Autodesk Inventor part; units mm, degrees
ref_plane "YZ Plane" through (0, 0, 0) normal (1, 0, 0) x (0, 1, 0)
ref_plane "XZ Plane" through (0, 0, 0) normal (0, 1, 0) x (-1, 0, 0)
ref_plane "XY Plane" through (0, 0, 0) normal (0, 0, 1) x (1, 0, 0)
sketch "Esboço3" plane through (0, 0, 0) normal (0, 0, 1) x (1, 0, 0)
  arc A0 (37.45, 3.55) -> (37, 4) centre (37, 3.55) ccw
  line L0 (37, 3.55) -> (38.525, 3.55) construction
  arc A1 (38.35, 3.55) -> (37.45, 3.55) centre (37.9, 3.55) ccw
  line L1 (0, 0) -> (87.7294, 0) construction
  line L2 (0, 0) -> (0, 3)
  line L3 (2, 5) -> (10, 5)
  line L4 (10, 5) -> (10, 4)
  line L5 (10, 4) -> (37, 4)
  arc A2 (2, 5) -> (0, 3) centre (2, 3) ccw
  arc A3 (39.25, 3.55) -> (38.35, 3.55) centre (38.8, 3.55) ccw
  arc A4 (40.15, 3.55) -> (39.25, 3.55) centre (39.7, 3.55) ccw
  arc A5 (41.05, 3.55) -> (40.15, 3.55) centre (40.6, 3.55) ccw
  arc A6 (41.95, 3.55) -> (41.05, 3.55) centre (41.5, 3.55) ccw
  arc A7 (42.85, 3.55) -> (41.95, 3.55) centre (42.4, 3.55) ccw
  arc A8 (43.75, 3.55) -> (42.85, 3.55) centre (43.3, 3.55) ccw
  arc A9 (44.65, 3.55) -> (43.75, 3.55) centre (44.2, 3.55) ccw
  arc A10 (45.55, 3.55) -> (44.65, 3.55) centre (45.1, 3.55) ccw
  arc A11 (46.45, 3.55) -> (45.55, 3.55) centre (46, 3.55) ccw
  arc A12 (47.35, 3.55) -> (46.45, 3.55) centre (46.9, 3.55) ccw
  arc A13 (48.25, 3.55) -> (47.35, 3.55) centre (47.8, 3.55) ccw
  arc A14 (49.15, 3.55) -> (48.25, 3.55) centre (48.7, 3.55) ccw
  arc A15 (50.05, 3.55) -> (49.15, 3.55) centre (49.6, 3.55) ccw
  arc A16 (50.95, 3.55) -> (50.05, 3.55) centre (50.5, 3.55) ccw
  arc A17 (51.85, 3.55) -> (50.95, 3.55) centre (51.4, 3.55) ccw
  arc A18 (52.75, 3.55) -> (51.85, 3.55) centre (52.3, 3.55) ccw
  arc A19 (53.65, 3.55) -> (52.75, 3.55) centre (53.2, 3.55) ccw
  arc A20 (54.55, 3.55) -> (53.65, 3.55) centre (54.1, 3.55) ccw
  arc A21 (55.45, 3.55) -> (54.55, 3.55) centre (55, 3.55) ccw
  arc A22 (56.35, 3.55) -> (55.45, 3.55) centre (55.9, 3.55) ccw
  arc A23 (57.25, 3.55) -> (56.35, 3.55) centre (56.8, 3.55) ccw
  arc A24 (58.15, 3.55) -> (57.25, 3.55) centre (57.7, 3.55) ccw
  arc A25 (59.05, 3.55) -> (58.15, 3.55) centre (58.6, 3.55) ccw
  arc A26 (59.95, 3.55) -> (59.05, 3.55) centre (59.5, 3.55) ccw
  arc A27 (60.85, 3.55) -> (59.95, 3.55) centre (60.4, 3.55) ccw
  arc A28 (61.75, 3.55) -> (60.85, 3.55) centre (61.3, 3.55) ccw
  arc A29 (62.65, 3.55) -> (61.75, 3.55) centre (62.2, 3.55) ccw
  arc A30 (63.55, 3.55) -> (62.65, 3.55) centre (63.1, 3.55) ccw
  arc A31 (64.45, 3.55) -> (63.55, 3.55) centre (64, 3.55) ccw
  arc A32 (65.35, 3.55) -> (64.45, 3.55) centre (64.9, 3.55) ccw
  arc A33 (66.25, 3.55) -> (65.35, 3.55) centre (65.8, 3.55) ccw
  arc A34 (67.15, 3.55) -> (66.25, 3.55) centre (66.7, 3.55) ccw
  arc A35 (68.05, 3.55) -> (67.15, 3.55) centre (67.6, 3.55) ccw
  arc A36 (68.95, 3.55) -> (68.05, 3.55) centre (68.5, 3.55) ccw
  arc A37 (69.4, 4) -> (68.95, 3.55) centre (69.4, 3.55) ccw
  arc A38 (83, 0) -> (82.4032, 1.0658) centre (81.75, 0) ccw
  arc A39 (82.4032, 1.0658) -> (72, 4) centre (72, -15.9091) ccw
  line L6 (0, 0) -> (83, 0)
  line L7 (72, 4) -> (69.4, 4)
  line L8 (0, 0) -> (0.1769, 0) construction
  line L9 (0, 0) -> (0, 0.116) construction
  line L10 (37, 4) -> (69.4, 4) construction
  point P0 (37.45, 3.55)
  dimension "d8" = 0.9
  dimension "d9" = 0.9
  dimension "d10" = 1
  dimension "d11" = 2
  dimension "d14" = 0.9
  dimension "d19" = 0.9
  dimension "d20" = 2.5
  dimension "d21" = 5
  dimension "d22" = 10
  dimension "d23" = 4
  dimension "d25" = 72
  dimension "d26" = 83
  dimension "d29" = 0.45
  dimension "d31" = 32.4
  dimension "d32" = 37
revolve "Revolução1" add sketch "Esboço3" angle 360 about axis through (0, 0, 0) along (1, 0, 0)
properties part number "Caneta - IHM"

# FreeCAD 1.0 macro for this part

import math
import FreeCAD as App
import Part
import Sketcher

V = App.Vector
Q = App.Units.Quantity

doc = App.newDocument("Part")
params = doc.addObject("Spreadsheet::Sheet", "Params")
for row, (alias, value) in enumerate([
    ("sketch1_radius", "2 mm"),
    ("sketch1_width", "83 mm"),
    ("sketch1_height", "1 mm"),
    ("sketch1_radius2", "0.45 mm"),
    ("sketch1_radius3", "1.25 mm"),
    ("revolution_angle", "360 deg"),
], start=1):
    params.set(f"A{row}", alias)
    params.set(f"B{row}", "=" + value)
    params.setAlias(f"B{row}", alias)

body = doc.addObject("PartDesign::Body", "Body")

sketch1 = body.newObject("Sketcher::SketchObject", "Sketch")
sketch1.AttachmentSupport = (doc.getObject("XY_Plane"), [""])
sketch1.MapMode = "FlatFace"
sketch1.addGeometry([
    Part.ArcOfCircle(Part.Circle(V(37.9, 3.55, 0), V(0, 0, 1), 0.45), math.radians(0), math.radians(180)),
    Part.ArcOfCircle(Part.Circle(V(37, 3.55, 0), V(0, 0, 1), 0.45), math.radians(0), math.radians(90)),
    Part.LineSegment(V(37, 4, 0), V(10, 4, 0)),
    Part.LineSegment(V(10, 4, 0), V(10, 5, 0)),
    Part.LineSegment(V(10, 5, 0), V(2, 5, 0)),
    Part.ArcOfCircle(Part.Circle(V(2, 3, 0), V(0, 0, 1), 2), math.radians(90), math.radians(180)),
    Part.LineSegment(V(0, 3, 0), V(0, 0, 0)),
    Part.LineSegment(V(0, 0, 0), V(83, 0, 0)),
    Part.ArcOfCircle(Part.Circle(V(81.75, 0, 0), V(0, 0, 1), 1.25), math.radians(0), math.radians(58.496994)),
    Part.ArcOfCircle(Part.Circle(V(72, -15.9091, 0), V(0, 0, 1), 19.909139), math.radians(58.497625), math.radians(90)),
    Part.LineSegment(V(72, 4, 0), V(69.4, 4, 0)),
    Part.ArcOfCircle(Part.Circle(V(69.4, 3.55, 0), V(0, 0, 1), 0.45), math.radians(90), math.radians(180)),
    Part.ArcOfCircle(Part.Circle(V(68.5, 3.55, 0), V(0, 0, 1), 0.45), math.radians(0), math.radians(180)),
    Part.ArcOfCircle(Part.Circle(V(67.6, 3.55, 0), V(0, 0, 1), 0.45), math.radians(0), math.radians(180)),
    Part.ArcOfCircle(Part.Circle(V(66.7, 3.55, 0), V(0, 0, 1), 0.45), math.radians(0), math.radians(180)),
    Part.ArcOfCircle(Part.Circle(V(65.8, 3.55, 0), V(0, 0, 1), 0.45), math.radians(0), math.radians(180)),
    Part.ArcOfCircle(Part.Circle(V(64.9, 3.55, 0), V(0, 0, 1), 0.45), math.radians(0), math.radians(180)),
    Part.ArcOfCircle(Part.Circle(V(64, 3.55, 0), V(0, 0, 1), 0.45), math.radians(0), math.radians(180)),
    Part.ArcOfCircle(Part.Circle(V(63.1, 3.55, 0), V(0, 0, 1), 0.45), math.radians(0), math.radians(180)),
    Part.ArcOfCircle(Part.Circle(V(62.2, 3.55, 0), V(0, 0, 1), 0.45), math.radians(0), math.radians(180)),
    Part.ArcOfCircle(Part.Circle(V(61.3, 3.55, 0), V(0, 0, 1), 0.45), math.radians(0), math.radians(180)),
    Part.ArcOfCircle(Part.Circle(V(60.4, 3.55, 0), V(0, 0, 1), 0.45), math.radians(0), math.radians(180)),
    Part.ArcOfCircle(Part.Circle(V(59.5, 3.55, 0), V(0, 0, 1), 0.45), math.radians(0), math.radians(180)),
    Part.ArcOfCircle(Part.Circle(V(58.6, 3.55, 0), V(0, 0, 1), 0.45), math.radians(0), math.radians(180)),
    Part.ArcOfCircle(Part.Circle(V(57.7, 3.55, 0), V(0, 0, 1), 0.45), math.radians(0), math.radians(180)),
    Part.ArcOfCircle(Part.Circle(V(56.8, 3.55, 0), V(0, 0, 1), 0.45), math.radians(0), math.radians(180)),
    Part.ArcOfCircle(Part.Circle(V(55.9, 3.55, 0), V(0, 0, 1), 0.45), math.radians(0), math.radians(180)),
    Part.ArcOfCircle(Part.Circle(V(55, 3.55, 0), V(0, 0, 1), 0.45), math.radians(0), math.radians(180)),
    Part.ArcOfCircle(Part.Circle(V(54.1, 3.55, 0), V(0, 0, 1), 0.45), math.radians(0), math.radians(180)),
    Part.ArcOfCircle(Part.Circle(V(53.2, 3.55, 0), V(0, 0, 1), 0.45), math.radians(0), math.radians(180)),
    Part.ArcOfCircle(Part.Circle(V(52.3, 3.55, 0), V(0, 0, 1), 0.45), math.radians(0), math.radians(180)),
    Part.ArcOfCircle(Part.Circle(V(51.4, 3.55, 0), V(0, 0, 1), 0.45), math.radians(0), math.radians(180)),
    Part.ArcOfCircle(Part.Circle(V(50.5, 3.55, 0), V(0, 0, 1), 0.45), math.radians(0), math.radians(180)),
    Part.ArcOfCircle(Part.Circle(V(49.6, 3.55, 0), V(0, 0, 1), 0.45), math.radians(0), math.radians(180)),
    Part.ArcOfCircle(Part.Circle(V(48.7, 3.55, 0), V(0, 0, 1), 0.45), math.radians(0), math.radians(180)),
    Part.ArcOfCircle(Part.Circle(V(47.8, 3.55, 0), V(0, 0, 1), 0.45), math.radians(0), math.radians(180)),
    Part.ArcOfCircle(Part.Circle(V(46.9, 3.55, 0), V(0, 0, 1), 0.45), math.radians(0), math.radians(180)),
    Part.ArcOfCircle(Part.Circle(V(46, 3.55, 0), V(0, 0, 1), 0.45), math.radians(0), math.radians(180)),
    Part.ArcOfCircle(Part.Circle(V(45.1, 3.55, 0), V(0, 0, 1), 0.45), math.radians(0), math.radians(180)),
    Part.ArcOfCircle(Part.Circle(V(44.2, 3.55, 0), V(0, 0, 1), 0.45), math.radians(0), math.radians(180)),
    Part.ArcOfCircle(Part.Circle(V(43.3, 3.55, 0), V(0, 0, 1), 0.45), math.radians(0), math.radians(180)),
    Part.ArcOfCircle(Part.Circle(V(42.4, 3.55, 0), V(0, 0, 1), 0.45), math.radians(0), math.radians(180)),
    Part.ArcOfCircle(Part.Circle(V(41.5, 3.55, 0), V(0, 0, 1), 0.45), math.radians(0), math.radians(180)),
    Part.ArcOfCircle(Part.Circle(V(40.6, 3.55, 0), V(0, 0, 1), 0.45), math.radians(0), math.radians(180)),
    Part.ArcOfCircle(Part.Circle(V(39.7, 3.55, 0), V(0, 0, 1), 0.45), math.radians(0), math.radians(180)),
    Part.ArcOfCircle(Part.Circle(V(38.8, 3.55, 0), V(0, 0, 1), 0.45), math.radians(0), math.radians(180)),
], False)
sketch1.addConstraint([
    Sketcher.Constraint("Tangent", 0, 2, 1, 1),
    Sketcher.Constraint("Tangent", 1, 2, 2, 1),
    Sketcher.Constraint("Coincident", 2, 2, 3, 1),
    Sketcher.Constraint("Coincident", 3, 2, 4, 1),
    Sketcher.Constraint("Tangent", 4, 2, 5, 1),
    Sketcher.Constraint("Tangent", 5, 2, 6, 1),
    Sketcher.Constraint("Coincident", 6, 2, 7, 1),
    Sketcher.Constraint("Coincident", 7, 2, 8, 1),
    Sketcher.Constraint("Tangent", 8, 2, 9, 1),
    Sketcher.Constraint("Tangent", 9, 2, 10, 1),
    Sketcher.Constraint("Tangent", 10, 2, 11, 1),
    Sketcher.Constraint("Tangent", 11, 2, 12, 1),
    Sketcher.Constraint("Tangent", 12, 2, 13, 1),
    Sketcher.Constraint("Tangent", 13, 2, 14, 1),
    Sketcher.Constraint("Tangent", 14, 2, 15, 1),
    Sketcher.Constraint("Tangent", 15, 2, 16, 1),
    Sketcher.Constraint("Tangent", 16, 2, 17, 1),
    Sketcher.Constraint("Tangent", 17, 2, 18, 1),
    Sketcher.Constraint("Tangent", 18, 2, 19, 1),
    Sketcher.Constraint("Tangent", 19, 2, 20, 1),
    Sketcher.Constraint("Tangent", 20, 2, 21, 1),
    Sketcher.Constraint("Tangent", 21, 2, 22, 1),
    Sketcher.Constraint("Tangent", 22, 2, 23, 1),
    Sketcher.Constraint("Tangent", 23, 2, 24, 1),
    Sketcher.Constraint("Tangent", 24, 2, 25, 1),
    Sketcher.Constraint("Tangent", 25, 2, 26, 1),
    Sketcher.Constraint("Tangent", 26, 2, 27, 1),
    Sketcher.Constraint("Tangent", 27, 2, 28, 1),
    Sketcher.Constraint("Tangent", 28, 2, 29, 1),
    Sketcher.Constraint("Tangent", 29, 2, 30, 1),
    Sketcher.Constraint("Tangent", 30, 2, 31, 1),
    Sketcher.Constraint("Tangent", 31, 2, 32, 1),
    Sketcher.Constraint("Tangent", 32, 2, 33, 1),
    Sketcher.Constraint("Tangent", 33, 2, 34, 1),
    Sketcher.Constraint("Tangent", 34, 2, 35, 1),
    Sketcher.Constraint("Tangent", 35, 2, 36, 1),
    Sketcher.Constraint("Tangent", 36, 2, 37, 1),
    Sketcher.Constraint("Tangent", 37, 2, 38, 1),
    Sketcher.Constraint("Tangent", 38, 2, 39, 1),
    Sketcher.Constraint("Tangent", 39, 2, 40, 1),
    Sketcher.Constraint("Tangent", 40, 2, 41, 1),
    Sketcher.Constraint("Tangent", 41, 2, 42, 1),
    Sketcher.Constraint("Tangent", 42, 2, 43, 1),
    Sketcher.Constraint("Tangent", 43, 2, 44, 1),
    Sketcher.Constraint("Tangent", 44, 2, 45, 1),
    Sketcher.Constraint("Tangent", 45, 2, 0, 1),
    Sketcher.Constraint("Horizontal", 2),
    Sketcher.Constraint("Vertical", 3),
    Sketcher.Constraint("Horizontal", 4),
    Sketcher.Constraint("Vertical", 6),
    Sketcher.Constraint("Horizontal", 7),
    Sketcher.Constraint("Horizontal", 10),
    Sketcher.Constraint("Coincident", 6, 2, -1, 1),
    Sketcher.Constraint("Equal", 0, 1),
    Sketcher.Constraint("Equal", 1, 11),
    Sketcher.Constraint("Equal", 11, 12),
    Sketcher.Constraint("Equal", 12, 13),
    Sketcher.Constraint("Equal", 13, 14),
    Sketcher.Constraint("Equal", 14, 15),
    Sketcher.Constraint("Equal", 15, 16),
    Sketcher.Constraint("Equal", 16, 17),
    Sketcher.Constraint("Equal", 17, 18),
    Sketcher.Constraint("Equal", 18, 19),
    Sketcher.Constraint("Equal", 19, 20),
    Sketcher.Constraint("Equal", 20, 21),
    Sketcher.Constraint("Equal", 21, 22),
    Sketcher.Constraint("Equal", 22, 23),
    Sketcher.Constraint("Equal", 23, 24),
    Sketcher.Constraint("Equal", 24, 25),
    Sketcher.Constraint("Equal", 25, 26),
    Sketcher.Constraint("Equal", 26, 27),
    Sketcher.Constraint("Equal", 27, 28),
    Sketcher.Constraint("Equal", 28, 29),
    Sketcher.Constraint("Equal", 29, 30),
    Sketcher.Constraint("Equal", 30, 31),
    Sketcher.Constraint("Equal", 31, 32),
    Sketcher.Constraint("Equal", 32, 33),
    Sketcher.Constraint("Equal", 33, 34),
    Sketcher.Constraint("Equal", 34, 35),
    Sketcher.Constraint("Equal", 35, 36),
    Sketcher.Constraint("Equal", 36, 37),
    Sketcher.Constraint("Equal", 37, 38),
    Sketcher.Constraint("Equal", 38, 39),
    Sketcher.Constraint("Equal", 39, 40),
    Sketcher.Constraint("Equal", 40, 41),
    Sketcher.Constraint("Equal", 41, 42),
    Sketcher.Constraint("Equal", 42, 43),
    Sketcher.Constraint("Equal", 43, 44),
    Sketcher.Constraint("Equal", 44, 45),
    Sketcher.Constraint("PointOnObject", 8, 3, -1),
    Sketcher.Constraint("Horizontal", 0, 3, 1, 3),
    Sketcher.Constraint("Horizontal", 1, 3, 11, 3),
    Sketcher.Constraint("Horizontal", 11, 3, 12, 3),
    Sketcher.Constraint("Horizontal", 12, 3, 13, 3),
    Sketcher.Constraint("Horizontal", 13, 3, 14, 3),
    Sketcher.Constraint("Horizontal", 14, 3, 15, 3),
    Sketcher.Constraint("Horizontal", 15, 3, 16, 3),
    Sketcher.Constraint("Horizontal", 16, 3, 17, 3),
    Sketcher.Constraint("Horizontal", 17, 3, 18, 3),
    Sketcher.Constraint("Horizontal", 18, 3, 19, 3),
    Sketcher.Constraint("Horizontal", 19, 3, 20, 3),
    Sketcher.Constraint("Horizontal", 20, 3, 21, 3),
    Sketcher.Constraint("Horizontal", 21, 3, 22, 3),
    Sketcher.Constraint("Horizontal", 22, 3, 23, 3),
    Sketcher.Constraint("Horizontal", 23, 3, 24, 3),
    Sketcher.Constraint("Horizontal", 24, 3, 25, 3),
    Sketcher.Constraint("Horizontal", 25, 3, 26, 3),
    Sketcher.Constraint("Horizontal", 26, 3, 27, 3),
    Sketcher.Constraint("Horizontal", 27, 3, 28, 3),
    Sketcher.Constraint("Horizontal", 28, 3, 29, 3),
    Sketcher.Constraint("Horizontal", 29, 3, 30, 3),
    Sketcher.Constraint("Horizontal", 30, 3, 31, 3),
    Sketcher.Constraint("Horizontal", 31, 3, 32, 3),
    Sketcher.Constraint("Horizontal", 32, 3, 33, 3),
    Sketcher.Constraint("Horizontal", 33, 3, 34, 3),
    Sketcher.Constraint("Horizontal", 34, 3, 35, 3),
    Sketcher.Constraint("Horizontal", 35, 3, 36, 3),
    Sketcher.Constraint("Horizontal", 36, 3, 37, 3),
    Sketcher.Constraint("Horizontal", 37, 3, 38, 3),
    Sketcher.Constraint("Horizontal", 38, 3, 39, 3),
    Sketcher.Constraint("Horizontal", 39, 3, 40, 3),
    Sketcher.Constraint("Horizontal", 40, 3, 41, 3),
    Sketcher.Constraint("Horizontal", 41, 3, 42, 3),
    Sketcher.Constraint("Horizontal", 42, 3, 43, 3),
    Sketcher.Constraint("Horizontal", 43, 3, 44, 3),
    Sketcher.Constraint("Horizontal", 44, 3, 45, 3),
    Sketcher.Constraint("Radius", 5, Q("2 mm")),
    Sketcher.Constraint("DistanceX", 7, 1, 7, 2, Q("83 mm")),
    Sketcher.Constraint("DistanceY", 3, 1, 3, 2, Q("1 mm")),
    Sketcher.Constraint("Radius", 0, Q("0.45 mm")),
    Sketcher.Constraint("Radius", 8, Q("1.25 mm")),
    Sketcher.Constraint("DistanceX", -1, 1, 1, 3, Q("37 mm")),
    Sketcher.Constraint("DistanceX", -1, 1, 9, 3, Q("72 mm")),
    Sketcher.Constraint("DistanceY", -1, 1, 1, 2, Q("4 mm")),
    Sketcher.Constraint("DistanceX", -1, 1, 2, 2, Q("10 mm")),
])
sketch1.setExpression("Constraints[126]", "Params.sketch1_radius")
sketch1.setExpression("Constraints[127]", "Params.sketch1_width")
sketch1.setExpression("Constraints[128]", "Params.sketch1_height")
sketch1.setExpression("Constraints[129]", "Params.sketch1_radius2")
sketch1.setExpression("Constraints[130]", "Params.sketch1_radius3")
revolution = body.newObject("PartDesign::Revolution", "Revolution")
revolution.Profile = sketch1
revolution.ReferenceAxis = (sketch1, ["H_Axis"])
revolution.setExpression("Angle", "Params.revolution_angle")

doc.recompute()
